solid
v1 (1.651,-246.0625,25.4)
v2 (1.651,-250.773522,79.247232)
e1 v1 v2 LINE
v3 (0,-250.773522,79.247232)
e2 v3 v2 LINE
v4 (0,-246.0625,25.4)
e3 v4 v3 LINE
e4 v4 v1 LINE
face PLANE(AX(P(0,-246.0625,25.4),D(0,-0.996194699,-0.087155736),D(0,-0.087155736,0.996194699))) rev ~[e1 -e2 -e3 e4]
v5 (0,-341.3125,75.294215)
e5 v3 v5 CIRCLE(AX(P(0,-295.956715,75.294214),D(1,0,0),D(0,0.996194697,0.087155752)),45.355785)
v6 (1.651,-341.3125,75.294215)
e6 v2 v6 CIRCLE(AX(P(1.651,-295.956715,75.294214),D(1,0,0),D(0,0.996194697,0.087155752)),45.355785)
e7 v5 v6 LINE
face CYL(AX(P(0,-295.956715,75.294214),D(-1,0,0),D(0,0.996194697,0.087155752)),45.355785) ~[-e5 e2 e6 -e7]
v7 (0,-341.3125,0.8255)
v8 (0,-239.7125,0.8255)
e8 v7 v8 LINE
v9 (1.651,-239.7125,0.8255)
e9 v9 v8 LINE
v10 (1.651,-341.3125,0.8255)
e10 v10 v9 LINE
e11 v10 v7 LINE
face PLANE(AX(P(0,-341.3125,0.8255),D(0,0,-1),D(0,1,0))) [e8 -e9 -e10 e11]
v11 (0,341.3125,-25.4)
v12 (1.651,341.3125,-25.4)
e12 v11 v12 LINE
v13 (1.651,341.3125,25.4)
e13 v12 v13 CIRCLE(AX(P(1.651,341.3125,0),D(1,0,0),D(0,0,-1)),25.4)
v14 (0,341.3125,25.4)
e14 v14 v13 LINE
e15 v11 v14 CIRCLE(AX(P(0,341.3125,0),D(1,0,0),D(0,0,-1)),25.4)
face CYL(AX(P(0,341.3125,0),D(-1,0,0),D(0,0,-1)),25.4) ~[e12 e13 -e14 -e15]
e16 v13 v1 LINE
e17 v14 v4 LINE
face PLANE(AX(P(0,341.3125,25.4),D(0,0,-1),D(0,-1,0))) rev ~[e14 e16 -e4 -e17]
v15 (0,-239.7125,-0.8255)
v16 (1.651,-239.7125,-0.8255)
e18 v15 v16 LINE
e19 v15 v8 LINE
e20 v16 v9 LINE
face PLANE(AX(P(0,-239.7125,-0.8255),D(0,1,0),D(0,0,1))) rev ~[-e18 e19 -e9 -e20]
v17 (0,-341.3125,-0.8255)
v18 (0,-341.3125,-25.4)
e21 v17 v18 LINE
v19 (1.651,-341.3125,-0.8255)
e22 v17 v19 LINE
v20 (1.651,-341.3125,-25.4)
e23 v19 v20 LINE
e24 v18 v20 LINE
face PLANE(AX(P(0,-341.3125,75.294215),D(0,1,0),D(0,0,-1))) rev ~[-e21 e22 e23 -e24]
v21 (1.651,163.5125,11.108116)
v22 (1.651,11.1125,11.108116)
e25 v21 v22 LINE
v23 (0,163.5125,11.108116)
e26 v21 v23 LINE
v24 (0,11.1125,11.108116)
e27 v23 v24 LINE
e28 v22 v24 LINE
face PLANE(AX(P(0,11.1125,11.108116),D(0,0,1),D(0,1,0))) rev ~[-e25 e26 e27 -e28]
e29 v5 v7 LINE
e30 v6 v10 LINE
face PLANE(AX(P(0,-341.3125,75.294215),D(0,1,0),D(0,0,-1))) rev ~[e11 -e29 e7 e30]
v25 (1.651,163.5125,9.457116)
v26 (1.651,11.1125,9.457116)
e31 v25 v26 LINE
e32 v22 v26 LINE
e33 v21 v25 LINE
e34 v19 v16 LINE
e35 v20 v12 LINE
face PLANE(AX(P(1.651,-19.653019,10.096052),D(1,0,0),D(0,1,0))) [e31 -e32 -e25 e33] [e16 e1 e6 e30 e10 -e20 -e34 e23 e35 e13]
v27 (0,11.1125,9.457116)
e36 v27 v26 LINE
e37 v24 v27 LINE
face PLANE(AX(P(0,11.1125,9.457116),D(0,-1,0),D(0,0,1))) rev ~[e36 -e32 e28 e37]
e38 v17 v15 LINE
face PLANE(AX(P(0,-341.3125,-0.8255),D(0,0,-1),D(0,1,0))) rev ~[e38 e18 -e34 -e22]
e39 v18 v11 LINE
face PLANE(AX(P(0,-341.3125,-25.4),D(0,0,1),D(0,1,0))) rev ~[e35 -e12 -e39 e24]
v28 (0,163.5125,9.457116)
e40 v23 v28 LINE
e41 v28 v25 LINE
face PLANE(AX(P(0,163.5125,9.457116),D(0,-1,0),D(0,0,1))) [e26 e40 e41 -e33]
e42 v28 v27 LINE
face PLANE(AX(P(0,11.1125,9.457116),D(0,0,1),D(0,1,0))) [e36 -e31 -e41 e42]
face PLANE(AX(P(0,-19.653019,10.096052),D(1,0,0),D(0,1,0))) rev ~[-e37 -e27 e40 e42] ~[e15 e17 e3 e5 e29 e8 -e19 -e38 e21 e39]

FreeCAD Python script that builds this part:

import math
import FreeCAD as App
import Part
import Sketcher
from FreeCAD import Vector
Q = App.Units.Quantity


def add_polygon(sketch, points):
    """Adds a closed chain of lines whose ends are joined by coincident constraints."""
    first, n = sketch.GeometryCount, len(points)
    for a, b in zip(points, points[1:] + points[:1]):
        sketch.addGeometry(Part.LineSegment(App.Vector(*a, 0), App.Vector(*b, 0)), False)
    for i in range(n):
        sketch.addConstraint(Sketcher.Constraint("Coincident", first + i, 2, first + (i + 1) % n, 1))

doc = App.newDocument("Part")
body = doc.addObject("PartDesign::Body", "Body")

# Sketch on YZ plane
sketch1 = doc.addObject("Sketcher::SketchObject", "Sketch")
body.addObject(sketch1)
sketch1.AttachmentSupport = (doc.YZ_Plane, [""])
sketch1.MapMode = "FlatFace"
sketch1.addGeometry(Part.LineSegment(Vector(341, 25, 0), Vector(-246, 25, 0)), False)
sketch1.addGeometry(Part.LineSegment(Vector(-246, 25, 0), Vector(-251, 79, 0)), False)
sketch1.addGeometry(Part.ArcOfCircle(Part.Circle(Vector(-296, 75, 0), Vector(0, 0, 1), 45), math.radians(5), math.radians(180)), False)
sketch1.addGeometry(Part.LineSegment(Vector(-341, 75, 0), Vector(-341, -25, 0)), False)
sketch1.addGeometry(Part.LineSegment(Vector(-341, -25, 0), Vector(341, -25, 0)), False)
sketch1.addGeometry(Part.ArcOfCircle(Part.Circle(Vector(341, 0, 0), Vector(0, 0, 1), 25), math.radians(-90), math.radians(90)), False)
sketch1.addConstraint(Sketcher.Constraint("Coincident", 0, 2, 1, 1))
sketch1.addConstraint(Sketcher.Constraint("Tangent", 1, 2, 2, 1))
sketch1.addConstraint(Sketcher.Constraint("Tangent", 2, 2, 3, 1))
sketch1.addConstraint(Sketcher.Constraint("Coincident", 3, 2, 4, 1))
sketch1.addConstraint(Sketcher.Constraint("Tangent", 4, 2, 5, 1))
sketch1.addConstraint(Sketcher.Constraint("Tangent", 5, 2, 0, 1))
sketch1.addConstraint(Sketcher.Constraint("Horizontal", 0))
sketch1.addConstraint(Sketcher.Constraint("Vertical", 3))
sketch1.addConstraint(Sketcher.Constraint("Horizontal", 4))
sketch1.addConstraint(Sketcher.Constraint("Symmetric", 3, 2, 5, 2, -1, 1))
sketch1.addConstraint(Sketcher.Constraint("Radius", 5, Q("1 in")))
sketch1.addConstraint(Sketcher.Constraint("Angle", 1, Q("95 deg")))
sketch1.addConstraint(Sketcher.Constraint("DistanceX", 0, 2, 0, 1, Q("23.125 in")))
sketch1.addConstraint(Sketcher.Constraint("DistanceX", 4, 1, 4, 2, Q("26.875 in")))
sketch1.addConstraint(Sketcher.Constraint("Radius", 2, Q("45.355785 mm")))
pad1 = doc.addObject("PartDesign::Pad", "Pad")
body.addObject(pad1)
pad1.Profile = sketch1
pad1.Length = Q("0.065 in")

# Sketch on YZ plane
sketch2 = doc.addObject("Sketcher::SketchObject", "Sketch001")
body.addObject(sketch2)
sketch2.AttachmentSupport = (doc.YZ_Plane, [""])
sketch2.MapMode = "FlatFace"
add_polygon(sketch2, [(11.1, 11.1), (11.1, 9.5), (163.5, 9.5), (163.5, 11.1)])  # lines 0-3
add_polygon(sketch2, [(-341.3, 0.8), (-341.3, -0.8), (-239.7, -0.8), (-239.7, 0.8)])  # lines 4-7
sketch2.addConstraint(Sketcher.Constraint("Vertical", 0))
sketch2.addConstraint(Sketcher.Constraint("Horizontal", 1))
sketch2.addConstraint(Sketcher.Constraint("Vertical", 2))
sketch2.addConstraint(Sketcher.Constraint("Horizontal", 3))
sketch2.addConstraint(Sketcher.Constraint("Vertical", 4))
sketch2.addConstraint(Sketcher.Constraint("Horizontal", 5))
sketch2.addConstraint(Sketcher.Constraint("Vertical", 6))
sketch2.addConstraint(Sketcher.Constraint("Horizontal", 7))
sketch2.addConstraint(Sketcher.Constraint("Equal", 2, 4))
sketch2.addConstraint(Sketcher.Constraint("DistanceX", 1, 1, 1, 2, Q("6 in")))
sketch2.addConstraint(Sketcher.Constraint("DistanceX", 5, 1, 5, 2, Q("4 in")))
sketch2.addConstraint(Sketcher.Constraint("DistanceY", 0, 2, 0, 1, Q("0.065 in")))
sketch2.addConstraint(Sketcher.Constraint("DistanceX", -1, 1, 0, 2, Q("0.4375 in")))
sketch2.addConstraint(Sketcher.Constraint("DistanceX", 4, 2, -1, 1, Q("13.4375 in")))
sketch2.addConstraint(Sketcher.Constraint("DistanceY", 4, 2, -1, 1, Q("0.0325 in")))
sketch2.addConstraint(Sketcher.Constraint("DistanceY", -1, 1, 0, 2, Q("9.457116 mm")))
pocket1 = doc.addObject("PartDesign::Pocket", "Pocket")
body.addObject(pocket1)
pocket1.Profile = sketch2
pocket1.Length = Q("1 in")
pocket1.Midplane = True

doc.recompute()
